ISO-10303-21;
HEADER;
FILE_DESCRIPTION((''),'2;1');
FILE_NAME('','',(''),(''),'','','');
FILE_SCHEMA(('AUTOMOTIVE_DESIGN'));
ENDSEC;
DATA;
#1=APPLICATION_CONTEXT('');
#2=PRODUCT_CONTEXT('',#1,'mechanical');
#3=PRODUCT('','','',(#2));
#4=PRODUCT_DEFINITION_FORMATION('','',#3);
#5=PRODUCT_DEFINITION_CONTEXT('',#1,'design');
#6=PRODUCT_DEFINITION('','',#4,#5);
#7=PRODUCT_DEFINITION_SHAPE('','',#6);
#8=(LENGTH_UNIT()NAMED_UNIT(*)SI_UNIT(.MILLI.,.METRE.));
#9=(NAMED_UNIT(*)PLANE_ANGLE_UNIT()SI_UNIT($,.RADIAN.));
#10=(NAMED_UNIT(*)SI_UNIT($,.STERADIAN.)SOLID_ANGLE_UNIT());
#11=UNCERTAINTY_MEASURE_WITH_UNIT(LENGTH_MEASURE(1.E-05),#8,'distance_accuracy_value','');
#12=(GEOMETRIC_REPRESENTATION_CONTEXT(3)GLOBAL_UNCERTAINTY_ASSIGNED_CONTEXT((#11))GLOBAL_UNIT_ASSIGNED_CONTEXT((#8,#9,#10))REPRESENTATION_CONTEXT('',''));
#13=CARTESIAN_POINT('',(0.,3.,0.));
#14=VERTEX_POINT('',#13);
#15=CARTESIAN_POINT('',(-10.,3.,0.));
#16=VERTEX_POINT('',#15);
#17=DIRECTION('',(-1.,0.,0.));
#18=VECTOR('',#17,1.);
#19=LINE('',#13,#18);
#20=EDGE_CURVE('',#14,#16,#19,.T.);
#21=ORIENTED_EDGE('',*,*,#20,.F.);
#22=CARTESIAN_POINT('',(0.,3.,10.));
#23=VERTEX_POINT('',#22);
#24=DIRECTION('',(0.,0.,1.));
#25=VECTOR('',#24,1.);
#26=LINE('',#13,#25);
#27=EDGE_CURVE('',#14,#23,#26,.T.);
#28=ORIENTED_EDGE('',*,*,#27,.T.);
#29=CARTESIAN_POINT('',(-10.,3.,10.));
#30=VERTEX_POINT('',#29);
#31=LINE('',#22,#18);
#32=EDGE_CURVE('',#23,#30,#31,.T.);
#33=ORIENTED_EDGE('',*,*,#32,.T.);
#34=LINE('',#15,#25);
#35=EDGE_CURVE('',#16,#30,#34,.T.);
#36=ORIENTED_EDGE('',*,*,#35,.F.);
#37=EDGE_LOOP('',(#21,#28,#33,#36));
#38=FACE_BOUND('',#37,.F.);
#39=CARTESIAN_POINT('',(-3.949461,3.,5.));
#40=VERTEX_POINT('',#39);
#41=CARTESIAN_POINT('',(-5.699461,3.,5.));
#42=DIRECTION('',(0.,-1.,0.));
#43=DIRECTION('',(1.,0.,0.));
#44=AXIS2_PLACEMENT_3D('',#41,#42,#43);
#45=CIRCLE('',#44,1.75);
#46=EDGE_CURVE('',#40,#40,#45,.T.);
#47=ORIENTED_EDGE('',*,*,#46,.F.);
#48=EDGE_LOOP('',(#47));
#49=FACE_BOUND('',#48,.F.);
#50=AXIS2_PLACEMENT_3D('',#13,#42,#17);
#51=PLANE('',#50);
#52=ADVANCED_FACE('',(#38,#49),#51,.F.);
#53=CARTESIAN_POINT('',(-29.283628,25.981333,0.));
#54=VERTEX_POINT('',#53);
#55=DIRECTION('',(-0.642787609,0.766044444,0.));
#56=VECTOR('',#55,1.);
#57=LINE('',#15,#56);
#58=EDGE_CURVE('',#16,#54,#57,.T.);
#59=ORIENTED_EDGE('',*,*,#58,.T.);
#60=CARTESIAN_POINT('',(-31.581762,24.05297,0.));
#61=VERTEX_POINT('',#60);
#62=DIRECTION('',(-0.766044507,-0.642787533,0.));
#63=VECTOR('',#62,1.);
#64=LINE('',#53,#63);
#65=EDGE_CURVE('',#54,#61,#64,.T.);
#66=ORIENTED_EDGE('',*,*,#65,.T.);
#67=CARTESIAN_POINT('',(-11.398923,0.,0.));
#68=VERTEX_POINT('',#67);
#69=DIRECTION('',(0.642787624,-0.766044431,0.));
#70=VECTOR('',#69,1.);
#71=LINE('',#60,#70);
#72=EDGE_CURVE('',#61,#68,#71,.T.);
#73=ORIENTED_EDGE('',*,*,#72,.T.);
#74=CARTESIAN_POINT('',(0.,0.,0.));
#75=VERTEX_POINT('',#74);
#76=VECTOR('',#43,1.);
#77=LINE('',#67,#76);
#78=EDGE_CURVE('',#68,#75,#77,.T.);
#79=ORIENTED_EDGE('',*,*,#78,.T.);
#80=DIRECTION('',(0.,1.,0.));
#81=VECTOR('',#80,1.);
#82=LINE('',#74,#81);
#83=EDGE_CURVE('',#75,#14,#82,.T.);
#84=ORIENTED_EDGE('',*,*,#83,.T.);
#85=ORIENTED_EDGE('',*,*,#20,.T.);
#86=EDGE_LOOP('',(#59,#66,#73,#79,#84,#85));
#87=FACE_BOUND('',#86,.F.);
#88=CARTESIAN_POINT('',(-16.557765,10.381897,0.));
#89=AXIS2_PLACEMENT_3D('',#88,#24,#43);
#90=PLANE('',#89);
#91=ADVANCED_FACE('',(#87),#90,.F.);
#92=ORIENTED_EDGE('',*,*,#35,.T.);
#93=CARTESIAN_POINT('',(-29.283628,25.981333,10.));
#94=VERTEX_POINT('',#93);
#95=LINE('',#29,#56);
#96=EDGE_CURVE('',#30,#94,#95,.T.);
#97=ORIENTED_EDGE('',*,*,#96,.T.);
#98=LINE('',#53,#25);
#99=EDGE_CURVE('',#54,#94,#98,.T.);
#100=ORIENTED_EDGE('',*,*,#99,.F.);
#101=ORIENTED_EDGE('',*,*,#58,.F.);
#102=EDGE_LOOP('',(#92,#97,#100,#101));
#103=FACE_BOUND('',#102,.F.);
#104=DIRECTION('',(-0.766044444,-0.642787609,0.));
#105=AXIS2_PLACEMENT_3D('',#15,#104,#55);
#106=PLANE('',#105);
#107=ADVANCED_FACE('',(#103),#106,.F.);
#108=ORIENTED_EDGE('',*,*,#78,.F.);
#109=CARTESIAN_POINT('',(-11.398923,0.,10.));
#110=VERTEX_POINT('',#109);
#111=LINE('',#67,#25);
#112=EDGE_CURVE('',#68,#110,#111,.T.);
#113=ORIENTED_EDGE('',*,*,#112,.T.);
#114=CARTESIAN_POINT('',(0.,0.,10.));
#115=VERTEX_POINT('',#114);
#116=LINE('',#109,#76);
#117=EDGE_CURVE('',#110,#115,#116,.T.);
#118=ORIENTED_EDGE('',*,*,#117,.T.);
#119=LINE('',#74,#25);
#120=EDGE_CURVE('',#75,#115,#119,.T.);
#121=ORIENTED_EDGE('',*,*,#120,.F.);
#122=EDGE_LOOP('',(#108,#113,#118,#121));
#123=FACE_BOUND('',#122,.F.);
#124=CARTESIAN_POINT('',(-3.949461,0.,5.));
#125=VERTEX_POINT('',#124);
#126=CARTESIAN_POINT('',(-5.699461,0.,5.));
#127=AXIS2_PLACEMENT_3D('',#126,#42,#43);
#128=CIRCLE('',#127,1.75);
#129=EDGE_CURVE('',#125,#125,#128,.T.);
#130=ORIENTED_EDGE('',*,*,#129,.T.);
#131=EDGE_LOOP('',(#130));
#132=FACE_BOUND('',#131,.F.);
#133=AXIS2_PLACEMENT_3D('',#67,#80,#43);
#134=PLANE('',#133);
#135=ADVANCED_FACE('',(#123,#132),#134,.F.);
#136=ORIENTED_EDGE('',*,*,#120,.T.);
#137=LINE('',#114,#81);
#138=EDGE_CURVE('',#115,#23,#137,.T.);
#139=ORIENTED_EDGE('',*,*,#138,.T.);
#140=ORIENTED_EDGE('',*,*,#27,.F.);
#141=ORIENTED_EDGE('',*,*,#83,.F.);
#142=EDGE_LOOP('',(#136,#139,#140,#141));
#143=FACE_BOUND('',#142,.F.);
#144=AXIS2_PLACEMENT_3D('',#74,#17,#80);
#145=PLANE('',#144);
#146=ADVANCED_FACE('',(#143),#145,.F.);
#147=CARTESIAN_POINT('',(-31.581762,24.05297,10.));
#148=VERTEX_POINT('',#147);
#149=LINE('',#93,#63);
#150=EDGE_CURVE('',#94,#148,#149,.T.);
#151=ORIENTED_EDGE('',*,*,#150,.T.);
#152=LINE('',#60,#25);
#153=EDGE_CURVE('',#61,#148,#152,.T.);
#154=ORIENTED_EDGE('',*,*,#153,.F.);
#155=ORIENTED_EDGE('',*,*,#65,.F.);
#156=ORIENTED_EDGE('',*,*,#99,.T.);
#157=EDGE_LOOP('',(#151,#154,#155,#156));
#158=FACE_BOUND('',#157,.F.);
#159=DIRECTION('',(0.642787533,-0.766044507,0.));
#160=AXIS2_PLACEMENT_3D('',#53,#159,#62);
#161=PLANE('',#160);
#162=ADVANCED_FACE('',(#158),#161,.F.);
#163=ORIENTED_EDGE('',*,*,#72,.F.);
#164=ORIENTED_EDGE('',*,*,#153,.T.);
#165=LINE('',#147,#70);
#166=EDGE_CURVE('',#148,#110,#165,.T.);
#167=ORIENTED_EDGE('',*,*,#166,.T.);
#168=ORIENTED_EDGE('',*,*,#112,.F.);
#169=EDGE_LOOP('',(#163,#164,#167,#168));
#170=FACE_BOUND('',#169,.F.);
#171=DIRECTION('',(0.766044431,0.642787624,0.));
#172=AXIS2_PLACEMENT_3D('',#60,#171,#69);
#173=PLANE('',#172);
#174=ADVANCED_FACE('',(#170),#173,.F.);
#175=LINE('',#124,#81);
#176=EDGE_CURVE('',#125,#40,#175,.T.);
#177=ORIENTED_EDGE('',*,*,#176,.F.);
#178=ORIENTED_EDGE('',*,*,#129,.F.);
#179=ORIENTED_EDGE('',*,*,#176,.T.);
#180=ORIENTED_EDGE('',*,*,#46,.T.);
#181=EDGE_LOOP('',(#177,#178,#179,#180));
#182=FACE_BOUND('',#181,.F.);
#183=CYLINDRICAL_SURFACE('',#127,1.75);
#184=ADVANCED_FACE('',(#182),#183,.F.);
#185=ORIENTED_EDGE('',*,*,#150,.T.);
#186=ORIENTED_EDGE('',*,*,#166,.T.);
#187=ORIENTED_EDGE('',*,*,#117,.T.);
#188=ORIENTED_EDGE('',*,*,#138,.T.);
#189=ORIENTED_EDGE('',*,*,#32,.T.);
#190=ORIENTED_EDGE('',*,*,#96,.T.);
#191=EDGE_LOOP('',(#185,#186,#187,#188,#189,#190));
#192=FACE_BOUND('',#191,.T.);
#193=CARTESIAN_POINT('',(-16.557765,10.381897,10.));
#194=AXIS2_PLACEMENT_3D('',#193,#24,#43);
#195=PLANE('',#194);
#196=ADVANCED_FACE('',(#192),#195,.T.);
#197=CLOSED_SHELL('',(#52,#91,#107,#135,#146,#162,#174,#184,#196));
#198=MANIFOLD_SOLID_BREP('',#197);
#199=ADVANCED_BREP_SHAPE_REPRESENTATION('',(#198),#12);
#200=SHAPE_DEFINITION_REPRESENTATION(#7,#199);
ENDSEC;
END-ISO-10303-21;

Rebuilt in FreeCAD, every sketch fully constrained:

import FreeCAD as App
import Part
import Sketcher

V = App.Vector
Q = App.Units.Quantity

doc = App.newDocument("Part")
body = doc.addObject("PartDesign::Body", "Body")

# Sketch on XY plane
sketch1 = body.newObject("Sketcher::SketchObject", "Sketch")
sketch1.AttachmentSupport = (doc.getObject("XY_Plane"), [""])
sketch1.MapMode = "FlatFace"
sketch1.addGeometry([
    Part.LineSegment(V(-11.4, 0, 0), V(0, 0, 0)),  # 0
    Part.LineSegment(V(0, 0, 0), V(0, 3, 0)),  # 1
    Part.LineSegment(V(0, 3, 0), V(-10, 3, 0)),  # 2
    Part.LineSegment(V(-10, 3, 0), V(-29.3, 26, 0)),  # 3
    Part.LineSegment(V(-29.3, 26, 0), V(-31.6, 24.1, 0)),  # 4
    Part.LineSegment(V(-31.6, 24.1, 0), V(-11.4, 0, 0)),  # 5
], False)
sketch1.addConstraint([
    Sketcher.Constraint("Coincident", 0, 2, 1, 1),
    Sketcher.Constraint("Coincident", 1, 2, 2, 1),
    Sketcher.Constraint("Coincident", 2, 2, 3, 1),
    Sketcher.Constraint("Coincident", 3, 2, 4, 1),
    Sketcher.Constraint("Coincident", 4, 2, 5, 1),
    Sketcher.Constraint("Coincident", 5, 2, 0, 1),
    Sketcher.Constraint("Horizontal", 0),
    Sketcher.Constraint("Vertical", 1),
    Sketcher.Constraint("Horizontal", 2),
    Sketcher.Constraint("Coincident", 0, 2, -1, 1),
    Sketcher.Constraint("Perpendicular", 3, 4),
    Sketcher.Constraint("Perpendicular", 4, 5),
    Sketcher.Constraint("DistanceX", 2, 2, 2, 1, 10.0),
    Sketcher.Constraint("DistanceY", 1, 1, 1, 2, 3.0),
    Sketcher.Constraint("Angle", 3, Q("130 deg")),
    Sketcher.Constraint("Distance", 3, 30.0),
    Sketcher.Constraint("Distance", 4, 3.000001),
])
pad1 = body.newObject("PartDesign::Pad", "Pad")
pad1.Profile = sketch1
pad1.Length = 10

# Sketch on XZ plane
sketch2 = body.newObject("Sketcher::SketchObject", "Sketch001")
sketch2.AttachmentSupport = (doc.getObject("XZ_Plane"), [""])
sketch2.MapMode = "FlatFace"
sketch2.addGeometry(Part.Circle(V(-5.7, 5, 0), V(0, 0, 1), 1.8), False)
sketch2.addConstraint([
    Sketcher.Constraint("Diameter", 0, 3.5),
    Sketcher.Constraint("DistanceY", -1, 1, 0, 3, 5.0),
    Sketcher.Constraint("DistanceX", 0, 3, -1, 1, 5.699461),
])
pocket1 = body.newObject("PartDesign::Pocket", "Pocket")
pocket1.Profile = sketch2
pocket1.Length = 3

doc.recompute()
